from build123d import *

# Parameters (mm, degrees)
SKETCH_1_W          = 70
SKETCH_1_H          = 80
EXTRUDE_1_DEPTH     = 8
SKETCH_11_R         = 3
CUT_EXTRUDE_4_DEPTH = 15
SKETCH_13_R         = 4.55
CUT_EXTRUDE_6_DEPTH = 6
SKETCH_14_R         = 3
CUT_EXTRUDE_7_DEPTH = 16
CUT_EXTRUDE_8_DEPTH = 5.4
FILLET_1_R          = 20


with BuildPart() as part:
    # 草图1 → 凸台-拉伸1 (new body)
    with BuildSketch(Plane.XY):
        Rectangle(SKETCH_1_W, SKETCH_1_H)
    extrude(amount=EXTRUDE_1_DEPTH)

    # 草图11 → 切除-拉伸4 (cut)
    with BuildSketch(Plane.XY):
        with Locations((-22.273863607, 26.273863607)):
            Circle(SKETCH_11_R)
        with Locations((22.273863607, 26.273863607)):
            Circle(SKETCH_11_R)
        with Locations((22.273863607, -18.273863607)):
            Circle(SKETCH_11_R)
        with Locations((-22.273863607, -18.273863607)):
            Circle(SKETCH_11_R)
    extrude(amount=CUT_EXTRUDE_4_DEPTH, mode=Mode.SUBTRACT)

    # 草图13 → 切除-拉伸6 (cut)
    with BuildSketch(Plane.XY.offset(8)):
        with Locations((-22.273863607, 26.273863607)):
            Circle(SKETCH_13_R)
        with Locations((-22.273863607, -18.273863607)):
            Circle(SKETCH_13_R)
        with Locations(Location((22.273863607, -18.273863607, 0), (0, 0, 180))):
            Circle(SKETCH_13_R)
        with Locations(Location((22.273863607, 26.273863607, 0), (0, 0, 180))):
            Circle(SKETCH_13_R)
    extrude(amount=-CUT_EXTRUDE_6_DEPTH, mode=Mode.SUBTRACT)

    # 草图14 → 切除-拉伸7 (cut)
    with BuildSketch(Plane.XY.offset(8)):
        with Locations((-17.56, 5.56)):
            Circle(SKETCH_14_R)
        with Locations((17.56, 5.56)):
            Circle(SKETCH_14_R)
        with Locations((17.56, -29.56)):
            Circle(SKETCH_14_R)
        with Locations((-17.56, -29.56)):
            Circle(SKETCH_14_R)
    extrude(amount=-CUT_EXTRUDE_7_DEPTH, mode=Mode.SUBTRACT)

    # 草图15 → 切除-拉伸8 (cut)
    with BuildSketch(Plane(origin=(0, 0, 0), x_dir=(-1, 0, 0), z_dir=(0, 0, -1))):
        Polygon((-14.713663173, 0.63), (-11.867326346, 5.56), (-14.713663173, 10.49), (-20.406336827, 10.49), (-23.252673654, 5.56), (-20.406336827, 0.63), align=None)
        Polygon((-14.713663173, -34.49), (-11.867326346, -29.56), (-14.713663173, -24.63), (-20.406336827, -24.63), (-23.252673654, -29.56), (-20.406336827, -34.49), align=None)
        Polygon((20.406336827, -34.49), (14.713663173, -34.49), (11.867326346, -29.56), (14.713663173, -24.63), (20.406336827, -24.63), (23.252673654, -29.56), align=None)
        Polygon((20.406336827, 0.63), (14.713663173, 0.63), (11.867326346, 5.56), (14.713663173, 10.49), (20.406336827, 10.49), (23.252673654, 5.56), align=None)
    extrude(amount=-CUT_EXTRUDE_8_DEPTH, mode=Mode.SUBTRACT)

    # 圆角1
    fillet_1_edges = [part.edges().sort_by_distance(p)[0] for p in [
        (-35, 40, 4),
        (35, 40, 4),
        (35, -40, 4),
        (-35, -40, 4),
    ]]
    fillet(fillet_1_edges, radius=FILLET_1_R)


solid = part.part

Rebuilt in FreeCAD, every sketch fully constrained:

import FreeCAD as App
import Part
import Sketcher

V = App.Vector
Q = App.Units.Quantity


def edges_at(feature, points):
    """Names of the edges that pass closest to the given points."""
    edges = feature.Shape.Edges
    near = lambda p: min(range(len(edges)), key=lambda i: edges[i].distToShape(Part.Vertex(*p))[0])
    return sorted({f"Edge{near(p) + 1}" for p in points})

doc = App.newDocument("Part")
params = doc.addObject("Spreadsheet::Sheet", "Params")
for row, (alias, value) in enumerate([
    ("sketch1_width", "70 mm"),
    ("sketch1_height", "80 mm"),
    ("pad1_length", "8 mm"),
    ("sketch2_diameter", "6 mm"),
    ("pocket1_length", "15 mm"),
    ("sketch3_diameter", "9.1 mm"),
    ("pocket2_length", "6 mm"),
    ("sketch4_diameter", "6 mm"),
    ("pocket3_length", "16 mm"),
    ("pocket4_length", "5.4 mm"),
    ("fillet_radius", "20 mm"),
], start=1):
    params.set(f"A{row}", alias)
    params.set(f"B{row}", "=" + value)
    params.setAlias(f"B{row}", alias)

body = doc.addObject("PartDesign::Body", "Body")

sketch1 = body.newObject("Sketcher::SketchObject", "Sketch")
sketch1.AttachmentSupport = (doc.getObject("XY_Plane"), [""])
sketch1.MapMode = "FlatFace"
sketch1.addGeometry([
    Part.LineSegment(V(-35, 40, 0), V(-35, -40, 0)),
    Part.LineSegment(V(-35, -40, 0), V(35, -40, 0)),
    Part.LineSegment(V(35, -40, 0), V(35, 40, 0)),
    Part.LineSegment(V(35, 40, 0), V(-35, 40, 0)),
], False)
sketch1.addConstraint([
    Sketcher.Constraint("Coincident", 0, 2, 1, 1),
    Sketcher.Constraint("Coincident", 1, 2, 2, 1),
    Sketcher.Constraint("Coincident", 2, 2, 3, 1),
    Sketcher.Constraint("Coincident", 3, 2, 0, 1),
    Sketcher.Constraint("Vertical", 0),
    Sketcher.Constraint("Horizontal", 1),
    Sketcher.Constraint("Vertical", 2),
    Sketcher.Constraint("Horizontal", 3),
    Sketcher.Constraint("Symmetric", 0, 2, 2, 2, -1, 1),
    Sketcher.Constraint("DistanceX", 1, 1, 1, 2, 70.0),
    Sketcher.Constraint("DistanceY", 0, 2, 0, 1, 80.0),
])
sketch1.setExpression("Constraints[9]", "Params.sketch1_width")
sketch1.setExpression("Constraints[10]", "Params.sketch1_height")
pad1 = body.newObject("PartDesign::Pad", "Pad")
pad1.Profile = sketch1
pad1.setExpression("Length", "Params.pad1_length")

sketch2 = body.newObject("Sketcher::SketchObject", "Sketch001")
sketch2.AttachmentSupport = (doc.getObject("XY_Plane"), [""])
sketch2.MapMode = "FlatFace"
sketch2.addGeometry([
    Part.Circle(V(-22.3, 26.3, 0), V(0, 0, 1), 3),
    Part.Circle(V(22.3, 26.3, 0), V(0, 0, 1), 3),
    Part.Circle(V(22.3, -18.3, 0), V(0, 0, 1), 3),
    Part.Circle(V(-22.3, -18.3, 0), V(0, 0, 1), 3),
], False)
sketch2.addConstraint([
    Sketcher.Constraint("Equal", 0, 1),
    Sketcher.Constraint("Equal", 1, 2),
    Sketcher.Constraint("Equal", 2, 3),
    Sketcher.Constraint("Symmetric", 0, 3, 1, 3, -2),
    Sketcher.Constraint("Symmetric", 2, 3, 3, 3, -2),
    Sketcher.Constraint("Vertical", 1, 3, 2, 3),
    Sketcher.Constraint("Diameter", 0, 6.0),
    Sketcher.Constraint("DistanceX", 0, 3, -1, 1, 22.273864),
    Sketcher.Constraint("DistanceY", -1, 1, 0, 3, 26.273864),
    Sketcher.Constraint("DistanceY", 2, 3, -1, 1, 18.273864),
])
sketch2.setExpression("Constraints[6]", "Params.sketch2_diameter")
pocket1 = body.newObject("PartDesign::Pocket", "Pocket")
pocket1.Profile = sketch2
pocket1.setExpression("Length", "Params.pocket1_length")
pocket1.Reversed = True

sketch3 = body.newObject("Sketcher::SketchObject", "Sketch002")
sketch3.AttachmentSupport = (doc.getObject("XY_Plane"), [""])
sketch3.MapMode = "FlatFace"
sketch3.AttachmentOffset = App.Placement(V(0, 0, 8), App.Rotation())
sketch3.addGeometry([
    Part.Circle(V(-22.3, 26.3, 0), V(0, 0, 1), 4.5),
    Part.Circle(V(-22.3, -18.3, 0), V(0, 0, 1), 4.5),
    Part.Circle(V(22.3, -18.3, 0), V(0, 0, 1), 4.5),
    Part.Circle(V(22.3, 26.3, 0), V(0, 0, 1), 4.5),
], False)
sketch3.addConstraint([
    Sketcher.Constraint("Equal", 0, 1),
    Sketcher.Constraint("Equal", 1, 2),
    Sketcher.Constraint("Equal", 2, 3),
    Sketcher.Constraint("Symmetric", 1, 3, 2, 3, -2),
    Sketcher.Constraint("Symmetric", 0, 3, 3, 3, -2),
    Sketcher.Constraint("Vertical", 0, 3, 1, 3),
    Sketcher.Constraint("Diameter", 0, 9.1),
    Sketcher.Constraint("DistanceX", 0, 3, -1, 1, 22.273864),
    Sketcher.Constraint("DistanceY", -1, 1, 0, 3, 26.273864),
    Sketcher.Constraint("DistanceY", 1, 3, -1, 1, 18.273864),
])
sketch3.setExpression("Constraints[6]", "Params.sketch3_diameter")
pocket2 = body.newObject("PartDesign::Pocket", "Pocket001")
pocket2.Profile = sketch3
pocket2.setExpression("Length", "Params.pocket2_length")

sketch4 = body.newObject("Sketcher::SketchObject", "Sketch003")
sketch4.AttachmentSupport = (doc.getObject("XY_Plane"), [""])
sketch4.MapMode = "FlatFace"
sketch4.AttachmentOffset = App.Placement(V(0, 0, 8), App.Rotation())
sketch4.addGeometry([
    Part.Circle(V(-17.6, 5.6, 0), V(0, 0, 1), 3),
    Part.Circle(V(17.6, 5.6, 0), V(0, 0, 1), 3),
    Part.Circle(V(17.6, -29.6, 0), V(0, 0, 1), 3),
    Part.Circle(V(-17.6, -29.6, 0), V(0, 0, 1), 3),
], False)
sketch4.addConstraint([
    Sketcher.Constraint("Equal", 0, 1),
    Sketcher.Constraint("Equal", 1, 2),
    Sketcher.Constraint("Equal", 2, 3),
    Sketcher.Constraint("Symmetric", 0, 3, 1, 3, -2),
    Sketcher.Constraint("Symmetric", 2, 3, 3, 3, -2),
    Sketcher.Constraint("Vertical", 1, 3, 2, 3),
    Sketcher.Constraint("Diameter", 0, 6.0),
    Sketcher.Constraint("DistanceX", 0, 3, -1, 1, 17.56),
    Sketcher.Constraint("DistanceY", -1, 1, 0, 3, 5.56),
    Sketcher.Constraint("DistanceY", 2, 3, -1, 1, 29.56),
])
sketch4.setExpression("Constraints[6]", "Params.sketch4_diameter")
pocket3 = body.newObject("PartDesign::Pocket", "Pocket002")
pocket3.Profile = sketch4
pocket3.setExpression("Length", "Params.pocket3_length")

sketch5 = body.newObject("Sketcher::SketchObject", "Sketch004")
sketch5.AttachmentSupport = (doc.getObject("XY_Plane"), [""])
sketch5.MapMode = "FlatFace"
sketch5.addGeometry([
    Part.LineSegment(V(15, 1, 0), V(12, 6, 0)),
    Part.LineSegment(V(12, 6, 0), V(15, 10, 0)),
    Part.LineSegment(V(15, 10, 0), V(20, 10, 0)),
    Part.LineSegment(V(20, 10, 0), V(23, 6, 0)),
    Part.LineSegment(V(23, 6, 0), V(20, 1, 0)),
    Part.LineSegment(V(20, 1, 0), V(15, 1, 0)),
    Part.LineSegment(V(15, -34, 0), V(12, -30, 0)),
    Part.LineSegment(V(12, -30, 0), V(15, -25, 0)),
    Part.LineSegment(V(15, -25, 0), V(20, -25, 0)),
    Part.LineSegment(V(20, -25, 0), V(23, -30, 0)),
    Part.LineSegment(V(23, -30, 0), V(20, -34, 0)),
    Part.LineSegment(V(20, -34, 0), V(15, -34, 0)),
    Part.LineSegment(V(-15, -34, 0), V(-20, -34, 0)),
    Part.LineSegment(V(-20, -34, 0), V(-23, -30, 0)),
    Part.LineSegment(V(-23, -30, 0), V(-20, -25, 0)),
    Part.LineSegment(V(-20, -25, 0), V(-15, -25, 0)),
    Part.LineSegment(V(-15, -25, 0), V(-12, -30, 0)),
    Part.LineSegment(V(-12, -30, 0), V(-15, -34, 0)),
    Part.LineSegment(V(-15, 1, 0), V(-20, 1, 0)),
    Part.LineSegment(V(-20, 1, 0), V(-23, 6, 0)),
    Part.LineSegment(V(-23, 6, 0), V(-20, 10, 0)),
    Part.LineSegment(V(-20, 10, 0), V(-15, 10, 0)),
    Part.LineSegment(V(-15, 10, 0), V(-12, 6, 0)),
    Part.LineSegment(V(-12, 6, 0), V(-15, 1, 0)),
], False)
sketch5.addConstraint([
    Sketcher.Constraint("Coincident", 0, 2, 1, 1),
    Sketcher.Constraint("Coincident", 1, 2, 2, 1),
    Sketcher.Constraint("Coincident", 2, 2, 3, 1),
    Sketcher.Constraint("Coincident", 3, 2, 4, 1),
    Sketcher.Constraint("Coincident", 4, 2, 5, 1),
    Sketcher.Constraint("Coincident", 5, 2, 0, 1),
    Sketcher.Constraint("Coincident", 6, 2, 7, 1),
    Sketcher.Constraint("Coincident", 7, 2, 8, 1),
    Sketcher.Constraint("Coincident", 8, 2, 9, 1),
    Sketcher.Constraint("Coincident", 9, 2, 10, 1),
    Sketcher.Constraint("Coincident", 10, 2, 11, 1),
    Sketcher.Constraint("Coincident", 11, 2, 6, 1),
    Sketcher.Constraint("Coincident", 12, 2, 13, 1),
    Sketcher.Constraint("Coincident", 13, 2, 14, 1),
    Sketcher.Constraint("Coincident", 14, 2, 15, 1),
    Sketcher.Constraint("Coincident", 15, 2, 16, 1),
    Sketcher.Constraint("Coincident", 16, 2, 17, 1),
    Sketcher.Constraint("Coincident", 17, 2, 12, 1),
    Sketcher.Constraint("Coincident", 18, 2, 19, 1),
    Sketcher.Constraint("Coincident", 19, 2, 20, 1),
    Sketcher.Constraint("Coincident", 20, 2, 21, 1),
    Sketcher.Constraint("Coincident", 21, 2, 22, 1),
    Sketcher.Constraint("Coincident", 22, 2, 23, 1),
    Sketcher.Constraint("Coincident", 23, 2, 18, 1),
    Sketcher.Constraint("Horizontal", 2),
    Sketcher.Constraint("Horizontal", 5),
    Sketcher.Constraint("Horizontal", 8),
    Sketcher.Constraint("Horizontal", 11),
    Sketcher.Constraint("Horizontal", 12),
    Sketcher.Constraint("Horizontal", 15),
    Sketcher.Constraint("Horizontal", 18),
    Sketcher.Constraint("Horizontal", 21),
    Sketcher.Constraint("Symmetric", 10, 2, 12, 2, -2),
    Sketcher.Constraint("Symmetric", 9, 2, 13, 2, -2),
    Sketcher.Constraint("Symmetric", 8, 2, 14, 2, -2),
    Sketcher.Constraint("Symmetric", 6, 2, 16, 2, -2),
    Sketcher.Constraint("Symmetric", 4, 2, 18, 2, -2),
    Sketcher.Constraint("Symmetric", 3, 2, 19, 2, -2),
    Sketcher.Constraint("Symmetric", 2, 2, 20, 2, -2),
    Sketcher.Constraint("Symmetric", 0, 2, 22, 2, -2),
    Sketcher.Constraint("Parallel", 0, 3),
    Sketcher.Constraint("Parallel", 1, 4),
    Sketcher.Constraint("Parallel", 3, 6),
    Sketcher.Constraint("Parallel", 4, 7),
    Sketcher.Constraint("Parallel", 6, 9),
    Sketcher.Constraint("Parallel", 7, 10),
    Sketcher.Constraint("Parallel", 9, 13),
    Sketcher.Constraint("Parallel", 13, 16),
    Sketcher.Constraint("Parallel", 14, 17),
    Sketcher.Constraint("Parallel", 19, 22),
    Sketcher.Constraint("Parallel", 20, 23),
    Sketcher.Constraint("Horizontal", 0, 2, 3, 2),
    Sketcher.Constraint("Horizontal", 6, 2, 9, 2),
    Sketcher.Constraint("Vertical", 2, 2, 4, 2),
    Sketcher.Constraint("Vertical", 0, 2, 6, 2),
    Sketcher.Constraint("Vertical", 5, 2, 7, 2),
    Sketcher.Constraint("Vertical", 4, 2, 8, 2),
    Sketcher.Constraint("Vertical", 8, 2, 10, 2),
    Sketcher.Constraint("Angle", 0, Q("120 deg")),
    Sketcher.Constraint("DistanceY", -1, 1, 0, 2, 5.56),
    Sketcher.Constraint("DistanceY", -1, 1, 1, 2, 10.49),
    Sketcher.Constraint("DistanceY", 6, 2, -1, 1, 29.56),
    Sketcher.Constraint("DistanceX", 12, 2, 11, 2, 35.12),
    Sketcher.Constraint("DistanceX", 2, 1, 2, 2, 5.692674),
])
pocket4 = body.newObject("PartDesign::Pocket", "Pocket003")
pocket4.Profile = sketch5
pocket4.setExpression("Length", "Params.pocket4_length")
pocket4.Reversed = True
doc.recompute()

fillet = body.newObject("PartDesign::Fillet", "Fillet")
fillet.Base = (pocket4, edges_at(pocket4, [
    (-35, 40, 4),
    (35, 40, 4),
    (35, -40, 4),
    (-35, -40, 4),
]))
fillet.setExpression("Radius", "Params.fillet_radius")

doc.recompute()
